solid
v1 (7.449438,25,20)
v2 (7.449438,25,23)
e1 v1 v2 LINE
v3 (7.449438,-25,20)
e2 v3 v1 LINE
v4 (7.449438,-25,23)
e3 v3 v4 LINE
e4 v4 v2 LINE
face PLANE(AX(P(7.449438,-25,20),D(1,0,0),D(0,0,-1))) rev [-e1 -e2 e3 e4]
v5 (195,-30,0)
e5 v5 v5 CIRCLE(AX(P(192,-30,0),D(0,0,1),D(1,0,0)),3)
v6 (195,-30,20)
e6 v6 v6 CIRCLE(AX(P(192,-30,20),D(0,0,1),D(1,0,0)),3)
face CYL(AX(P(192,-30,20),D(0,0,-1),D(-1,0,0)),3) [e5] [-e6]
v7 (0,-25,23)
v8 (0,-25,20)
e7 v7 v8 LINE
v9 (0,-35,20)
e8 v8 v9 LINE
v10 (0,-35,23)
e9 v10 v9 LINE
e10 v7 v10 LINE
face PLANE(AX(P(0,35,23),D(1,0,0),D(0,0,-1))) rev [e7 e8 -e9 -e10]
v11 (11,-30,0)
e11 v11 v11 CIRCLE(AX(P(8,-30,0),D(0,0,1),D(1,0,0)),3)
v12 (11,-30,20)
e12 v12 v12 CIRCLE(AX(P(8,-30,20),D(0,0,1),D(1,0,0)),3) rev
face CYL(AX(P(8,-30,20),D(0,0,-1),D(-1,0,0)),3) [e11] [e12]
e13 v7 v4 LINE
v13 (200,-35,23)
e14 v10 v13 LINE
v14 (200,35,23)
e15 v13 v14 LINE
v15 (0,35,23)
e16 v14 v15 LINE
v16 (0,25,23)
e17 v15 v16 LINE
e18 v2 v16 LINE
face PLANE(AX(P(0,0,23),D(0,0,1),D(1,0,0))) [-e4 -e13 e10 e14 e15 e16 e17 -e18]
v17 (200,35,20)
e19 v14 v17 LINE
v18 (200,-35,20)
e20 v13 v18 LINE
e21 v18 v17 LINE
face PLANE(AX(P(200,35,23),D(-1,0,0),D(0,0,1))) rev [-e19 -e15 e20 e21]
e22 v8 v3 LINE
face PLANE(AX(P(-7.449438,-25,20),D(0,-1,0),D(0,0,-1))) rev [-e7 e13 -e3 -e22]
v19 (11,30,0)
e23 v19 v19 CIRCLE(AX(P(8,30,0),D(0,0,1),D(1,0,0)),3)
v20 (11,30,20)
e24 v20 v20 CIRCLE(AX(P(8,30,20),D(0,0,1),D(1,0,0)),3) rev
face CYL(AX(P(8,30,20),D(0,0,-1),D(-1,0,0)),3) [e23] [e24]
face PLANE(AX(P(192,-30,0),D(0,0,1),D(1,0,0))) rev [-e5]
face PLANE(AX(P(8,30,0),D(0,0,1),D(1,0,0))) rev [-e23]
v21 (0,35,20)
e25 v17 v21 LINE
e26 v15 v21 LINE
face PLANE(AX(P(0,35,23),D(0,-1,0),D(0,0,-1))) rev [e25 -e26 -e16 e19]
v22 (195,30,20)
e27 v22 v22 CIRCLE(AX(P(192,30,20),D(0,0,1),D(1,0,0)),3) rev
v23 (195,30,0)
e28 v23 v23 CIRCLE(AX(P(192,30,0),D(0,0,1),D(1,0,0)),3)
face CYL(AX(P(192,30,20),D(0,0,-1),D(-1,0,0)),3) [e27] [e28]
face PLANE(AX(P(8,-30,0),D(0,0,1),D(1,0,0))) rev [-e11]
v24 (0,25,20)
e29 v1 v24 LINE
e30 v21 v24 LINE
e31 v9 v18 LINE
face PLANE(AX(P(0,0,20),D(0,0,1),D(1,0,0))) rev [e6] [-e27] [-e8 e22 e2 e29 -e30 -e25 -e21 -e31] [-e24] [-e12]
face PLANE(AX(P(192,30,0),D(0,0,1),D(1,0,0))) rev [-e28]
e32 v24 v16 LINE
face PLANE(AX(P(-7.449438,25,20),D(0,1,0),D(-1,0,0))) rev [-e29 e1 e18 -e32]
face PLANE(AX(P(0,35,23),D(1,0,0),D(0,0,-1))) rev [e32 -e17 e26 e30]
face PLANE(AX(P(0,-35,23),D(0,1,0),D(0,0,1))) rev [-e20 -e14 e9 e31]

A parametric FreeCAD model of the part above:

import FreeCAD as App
import Part
import Sketcher
from FreeCAD import Vector
Q = App.Units.Quantity

doc = App.newDocument("Part")
body = doc.addObject("PartDesign::Body", "Body")

sketch1 = body.newObject("Sketcher::SketchObject", "Sketch")
sketch1.AttachmentSupport = (doc.getObject("XY_Plane"), [""])
sketch1.MapMode = "FlatFace"
sketch1.addGeometry(Part.Circle(Vector(192, -30, 0), Vector(0, 0, 1), 3), False)
sketch1.addConstraint(Sketcher.Constraint("Diameter", 0, Q("6 mm")))
sketch1.addConstraint(Sketcher.Constraint("DistanceX", -1, 1, 0, 3, Q("192 mm")))
sketch1.addConstraint(Sketcher.Constraint("DistanceY", 0, 3, -1, 1, Q("30 mm")))
pad1 = body.newObject("PartDesign::Pad", "Pad")
pad1.Profile = sketch1
pad1.Length = 20
body2 = doc.addObject("PartDesign::Body", "Body001")

sketch2 = body2.newObject("Sketcher::SketchObject", "Sketch001")
sketch2.AttachmentSupport = (doc.getObject("XY_Plane001"), [""])
sketch2.MapMode = "FlatFace"
sketch2.addGeometry(Part.Circle(Vector(192, 30, 0), Vector(0, 0, 1), 3), False)
sketch2.addConstraint(Sketcher.Constraint("Diameter", 0, Q("6 mm")))
sketch2.addConstraint(Sketcher.Constraint("DistanceX", -1, 1, 0, 3, Q("192 mm")))
sketch2.addConstraint(Sketcher.Constraint("DistanceY", -1, 1, 0, 3, Q("30 mm")))
pad2 = body2.newObject("PartDesign::Pad", "Pad001")
pad2.Profile = sketch2
pad2.Length = 20
body3 = doc.addObject("PartDesign::Body", "Body002")

sketch3 = body3.newObject("Sketcher::SketchObject", "Sketch002")
sketch3.AttachmentSupport = (doc.getObject("XY_Plane002"), [""])
sketch3.MapMode = "FlatFace"
sketch3.addGeometry(Part.Circle(Vector(8, 30, 0), Vector(0, 0, 1), 3), False)
sketch3.addConstraint(Sketcher.Constraint("Diameter", 0, Q("6 mm")))
sketch3.addConstraint(Sketcher.Constraint("DistanceX", -1, 1, 0, 3, Q("8 mm")))
sketch3.addConstraint(Sketcher.Constraint("DistanceY", -1, 1, 0, 3, Q("30 mm")))
pad3 = body3.newObject("PartDesign::Pad", "Pad002")
pad3.Profile = sketch3
pad3.Length = 20
body4 = doc.addObject("PartDesign::Body", "Body003")

sketch4 = body4.newObject("Sketcher::SketchObject", "Sketch003")
sketch4.AttachmentSupport = (doc.getObject("XY_Plane003"), [""])
sketch4.MapMode = "FlatFace"
sketch4.addGeometry(Part.Circle(Vector(8, -30, 0), Vector(0, 0, 1), 3), False)
sketch4.addConstraint(Sketcher.Constraint("Diameter", 0, Q("6 mm")))
sketch4.addConstraint(Sketcher.Constraint("DistanceX", -1, 1, 0, 3, Q("8 mm")))
sketch4.addConstraint(Sketcher.Constraint("DistanceY", 0, 3, -1, 1, Q("30 mm")))
pad4 = body4.newObject("PartDesign::Pad", "Pad003")
pad4.Profile = sketch4
pad4.Length = 20
body.AllowCompound = True
doc.recompute()

boolean = body.newObject("PartDesign::Boolean", "Boolean")
boolean.Type = "Fuse"
boolean.addObjects([body2])
doc.recompute()

boolean2 = body.newObject("PartDesign::Boolean", "Boolean001")
boolean2.Type = "Fuse"
boolean2.addObjects([body3])
doc.recompute()

boolean3 = body.newObject("PartDesign::Boolean", "Boolean002")
boolean3.Type = "Fuse"
boolean3.addObjects([body4])

sketch5 = body.newObject("Sketcher::SketchObject", "Sketch004")
sketch5.AttachmentSupport = (doc.getObject("XY_Plane"), [""])
sketch5.MapMode = "FlatFace"
sketch5.AttachmentOffset = App.Placement(Vector(0, 0, 20), App.Rotation())
sketch5.addGeometry(Part.LineSegment(Vector(0, 35, 0), Vector(0, -35, 0)), False)
sketch5.addGeometry(Part.LineSegment(Vector(0, -35, 0), Vector(200, -35, 0)), False)
sketch5.addGeometry(Part.LineSegment(Vector(200, -35, 0), Vector(200, 35, 0)), False)
sketch5.addGeometry(Part.LineSegment(Vector(200, 35, 0), Vector(0, 35, 0)), False)
sketch5.addConstraint(Sketcher.Constraint("Coincident", 0, 2, 1, 1))
sketch5.addConstraint(Sketcher.Constraint("Coincident", 1, 2, 2, 1))
sketch5.addConstraint(Sketcher.Constraint("Coincident", 2, 2, 3, 1))
sketch5.addConstraint(Sketcher.Constraint("Coincident", 3, 2, 0, 1))
sketch5.addConstraint(Sketcher.Constraint("Vertical", 0))
sketch5.addConstraint(Sketcher.Constraint("Horizontal", 1))
sketch5.addConstraint(Sketcher.Constraint("Vertical", 2))
sketch5.addConstraint(Sketcher.Constraint("Horizontal", 3))
sketch5.addConstraint(Sketcher.Constraint("Symmetric", 0, 2, 3, 2, -1, 1))
sketch5.addConstraint(Sketcher.Constraint("DistanceX", 1, 1, 1, 2, Q("200 mm")))
sketch5.addConstraint(Sketcher.Constraint("DistanceY", 0, 2, 0, 1, Q("70 mm")))
pad5 = body.newObject("PartDesign::Pad", "Pad004")
pad5.Profile = sketch5
pad5.Length = 3

sketch6 = body.newObject("Sketcher::SketchObject", "Sketch005")
sketch6.AttachmentSupport = (doc.getObject("XY_Plane"), [""])
sketch6.MapMode = "FlatFace"
sketch6.AttachmentOffset = App.Placement(Vector(0, 0, 23), App.Rotation())
sketch6.addGeometry(Part.LineSegment(Vector(-7, 25, 0), Vector(-7, -25, 0)), False)
sketch6.addGeometry(Part.LineSegment(Vector(-7, -25, 0), Vector(7, -25, 0)), False)
sketch6.addGeometry(Part.LineSegment(Vector(7, -25, 0), Vector(7, 25, 0)), False)
sketch6.addGeometry(Part.LineSegment(Vector(7, 25, 0), Vector(-7, 25, 0)), False)
sketch6.addConstraint(Sketcher.Constraint("Coincident", 0, 2, 1, 1))
sketch6.addConstraint(Sketcher.Constraint("Coincident", 1, 2, 2, 1))
sketch6.addConstraint(Sketcher.Constraint("Coincident", 2, 2, 3, 1))
sketch6.addConstraint(Sketcher.Constraint("Coincident", 3, 2, 0, 1))
sketch6.addConstraint(Sketcher.Constraint("Vertical", 0))
sketch6.addConstraint(Sketcher.Constraint("Horizontal", 1))
sketch6.addConstraint(Sketcher.Constraint("Vertical", 2))
sketch6.addConstraint(Sketcher.Constraint("Horizontal", 3))
sketch6.addConstraint(Sketcher.Constraint("Symmetric", 0, 2, 2, 2, -1, 1))
sketch6.addConstraint(Sketcher.Constraint("DistanceY", 0, 2, 0, 1, Q("50 mm")))
sketch6.addConstraint(Sketcher.Constraint("DistanceX", 1, 1, 1, 2, Q("14.898875 mm")))
pocket1 = body.newObject("PartDesign::Pocket", "Pocket")
pocket1.Profile = sketch6
pocket1.Length = 3

doc.recompute()
